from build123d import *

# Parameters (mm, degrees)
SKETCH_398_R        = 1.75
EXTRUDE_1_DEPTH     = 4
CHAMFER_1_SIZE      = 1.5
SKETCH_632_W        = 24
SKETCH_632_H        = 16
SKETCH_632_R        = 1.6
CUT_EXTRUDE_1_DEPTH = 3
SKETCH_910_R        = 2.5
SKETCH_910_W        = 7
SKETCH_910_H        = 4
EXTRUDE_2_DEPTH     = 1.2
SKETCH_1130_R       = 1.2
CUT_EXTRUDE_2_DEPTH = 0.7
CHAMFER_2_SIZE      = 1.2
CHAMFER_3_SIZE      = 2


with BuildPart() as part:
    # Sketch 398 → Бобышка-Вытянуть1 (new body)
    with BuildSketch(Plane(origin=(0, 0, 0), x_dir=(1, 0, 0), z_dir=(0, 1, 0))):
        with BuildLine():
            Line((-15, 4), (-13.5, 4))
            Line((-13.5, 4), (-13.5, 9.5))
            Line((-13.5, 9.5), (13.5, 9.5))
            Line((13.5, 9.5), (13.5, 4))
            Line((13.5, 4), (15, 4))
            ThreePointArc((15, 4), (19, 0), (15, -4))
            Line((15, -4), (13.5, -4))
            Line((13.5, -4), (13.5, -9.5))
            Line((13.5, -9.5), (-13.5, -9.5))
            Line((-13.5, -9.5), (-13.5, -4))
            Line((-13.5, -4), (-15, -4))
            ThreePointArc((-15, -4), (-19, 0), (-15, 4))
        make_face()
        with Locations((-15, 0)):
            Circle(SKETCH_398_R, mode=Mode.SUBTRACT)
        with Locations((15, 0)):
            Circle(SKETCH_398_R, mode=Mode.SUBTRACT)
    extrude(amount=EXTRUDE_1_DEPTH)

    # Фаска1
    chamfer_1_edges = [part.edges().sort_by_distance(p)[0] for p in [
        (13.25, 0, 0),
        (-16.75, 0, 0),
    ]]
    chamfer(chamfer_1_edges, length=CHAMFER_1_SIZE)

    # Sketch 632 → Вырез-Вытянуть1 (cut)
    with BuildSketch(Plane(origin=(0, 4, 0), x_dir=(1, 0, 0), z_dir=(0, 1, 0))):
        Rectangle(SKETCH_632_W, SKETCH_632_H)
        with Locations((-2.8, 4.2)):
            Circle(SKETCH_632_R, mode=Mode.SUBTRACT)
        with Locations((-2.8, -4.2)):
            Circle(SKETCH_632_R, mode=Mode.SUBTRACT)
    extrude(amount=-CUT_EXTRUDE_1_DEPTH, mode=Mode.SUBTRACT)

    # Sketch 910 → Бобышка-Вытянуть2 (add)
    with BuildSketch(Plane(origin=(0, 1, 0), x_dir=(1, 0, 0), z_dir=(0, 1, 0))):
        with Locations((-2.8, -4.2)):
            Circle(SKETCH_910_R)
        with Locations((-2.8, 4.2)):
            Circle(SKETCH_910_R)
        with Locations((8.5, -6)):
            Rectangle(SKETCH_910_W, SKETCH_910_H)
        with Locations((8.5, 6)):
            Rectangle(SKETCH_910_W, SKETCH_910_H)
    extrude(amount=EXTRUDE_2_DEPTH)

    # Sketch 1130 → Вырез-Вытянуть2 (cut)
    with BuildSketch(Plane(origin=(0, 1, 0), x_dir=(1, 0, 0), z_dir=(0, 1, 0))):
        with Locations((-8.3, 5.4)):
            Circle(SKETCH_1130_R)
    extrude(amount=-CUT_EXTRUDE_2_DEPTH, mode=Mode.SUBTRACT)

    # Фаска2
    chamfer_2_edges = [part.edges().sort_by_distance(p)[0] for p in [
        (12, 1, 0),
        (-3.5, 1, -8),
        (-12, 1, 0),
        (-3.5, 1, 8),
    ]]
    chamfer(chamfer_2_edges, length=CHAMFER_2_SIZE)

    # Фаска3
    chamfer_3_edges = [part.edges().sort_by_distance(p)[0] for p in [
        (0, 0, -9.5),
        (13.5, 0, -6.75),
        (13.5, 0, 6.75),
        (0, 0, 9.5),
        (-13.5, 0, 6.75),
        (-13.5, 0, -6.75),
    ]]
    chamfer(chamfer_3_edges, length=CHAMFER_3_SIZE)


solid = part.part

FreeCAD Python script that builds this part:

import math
import FreeCAD as App
import Part
import Sketcher

V = App.Vector
Q = App.Units.Quantity


def edges_at(feature, points):
    """Names of the edges that pass closest to the given points."""
    edges = feature.Shape.Edges
    near = lambda p: min(range(len(edges)), key=lambda i: edges[i].distToShape(Part.Vertex(*p))[0])
    return sorted({f"Edge{near(p) + 1}" for p in points})

doc = App.newDocument("Part")
body = doc.addObject("PartDesign::Body", "Body")

sketch1 = body.newObject("Sketcher::SketchObject", "Sketch")
sketch1.AttachmentSupport = (doc.getObject("XZ_Plane"), [""])
sketch1.MapMode = "FlatFace"
sketch1.addGeometry(Part.LineSegment(V(-13.5, -4, 0), V(-15, -4, 0)), False)
sketch1.addGeometry(Part.ArcOfCircle(Part.Circle(V(-15, 0, 0), V(0, 0, 1), 4), math.radians(90), math.radians(270)), False)
sketch1.addGeometry(Part.LineSegment(V(-15, 4, 0), V(-13.5, 4, 0)), False)
sketch1.addGeometry(Part.LineSegment(V(-13.5, 4, 0), V(-13.5, 9.5, 0)), False)
sketch1.addGeometry(Part.LineSegment(V(-13.5, 9.5, 0), V(13.5, 9.5, 0)), False)
sketch1.addGeometry(Part.LineSegment(V(13.5, 9.5, 0), V(13.5, 4, 0)), False)
sketch1.addGeometry(Part.LineSegment(V(13.5, 4, 0), V(15, 4, 0)), False)
sketch1.addGeometry(Part.ArcOfCircle(Part.Circle(V(15, 0, 0), V(0, 0, 1), 4), math.radians(-90), math.radians(90)), False)
sketch1.addGeometry(Part.LineSegment(V(15, -4, 0), V(13.5, -4, 0)), False)
sketch1.addGeometry(Part.LineSegment(V(13.5, -4, 0), V(13.5, -9.5, 0)), False)
sketch1.addGeometry(Part.LineSegment(V(13.5, -9.5, 0), V(-13.5, -9.5, 0)), False)
sketch1.addGeometry(Part.LineSegment(V(-13.5, -9.5, 0), V(-13.5, -4, 0)), False)
sketch1.addGeometry(Part.Circle(V(15, 0, 0), V(0, 0, 1), 1.8), False)
sketch1.addGeometry(Part.Circle(V(-15, 0, 0), V(0, 0, 1), 1.8), False)
sketch1.addConstraint(Sketcher.Constraint("Tangent", 0, 2, 1, 2))
sketch1.addConstraint(Sketcher.Constraint("Tangent", 1, 1, 2, 1))
sketch1.addConstraint(Sketcher.Constraint("Coincident", 2, 2, 3, 1))
sketch1.addConstraint(Sketcher.Constraint("Coincident", 3, 2, 4, 1))
sketch1.addConstraint(Sketcher.Constraint("Coincident", 4, 2, 5, 1))
sketch1.addConstraint(Sketcher.Constraint("Coincident", 5, 2, 6, 1))
sketch1.addConstraint(Sketcher.Constraint("Tangent", 6, 2, 7, 2))
sketch1.addConstraint(Sketcher.Constraint("Tangent", 7, 1, 8, 1))
sketch1.addConstraint(Sketcher.Constraint("Coincident", 8, 2, 9, 1))
sketch1.addConstraint(Sketcher.Constraint("Coincident", 9, 2, 10, 1))
sketch1.addConstraint(Sketcher.Constraint("Coincident", 10, 2, 11, 1))
sketch1.addConstraint(Sketcher.Constraint("Coincident", 11, 2, 0, 1))
sketch1.addConstraint(Sketcher.Constraint("Horizontal", 0))
sketch1.addConstraint(Sketcher.Constraint("Horizontal", 2))
sketch1.addConstraint(Sketcher.Constraint("Vertical", 3))
sketch1.addConstraint(Sketcher.Constraint("Horizontal", 4))
sketch1.addConstraint(Sketcher.Constraint("Vertical", 5))
sketch1.addConstraint(Sketcher.Constraint("Horizontal", 6))
sketch1.addConstraint(Sketcher.Constraint("Horizontal", 8))
sketch1.addConstraint(Sketcher.Constraint("Vertical", 9))
sketch1.addConstraint(Sketcher.Constraint("Horizontal", 10))
sketch1.addConstraint(Sketcher.Constraint("Vertical", 11))
sketch1.addConstraint(Sketcher.Constraint("Coincident", 12, 3, 7, 3))
sketch1.addConstraint(Sketcher.Constraint("Coincident", 13, 3, 1, 3))
sketch1.addConstraint(Sketcher.Constraint("Equal", 1, 7))
sketch1.addConstraint(Sketcher.Constraint("Equal", 12, 13))
sketch1.addConstraint(Sketcher.Constraint("Symmetric", 1, 3, 7, 3, -1, 1))
sketch1.addConstraint(Sketcher.Constraint("Symmetric", 3, 2, 9, 2, -1, 1))
sketch1.addConstraint(Sketcher.Constraint("Symmetric", 2, 2, 5, 2, -2))
sketch1.addConstraint(Sketcher.Constraint("Vertical", 3, 2, 10, 2))
sketch1.addConstraint(Sketcher.Constraint("Radius", 1, Q("4 mm")))
sketch1.addConstraint(Sketcher.Constraint("Diameter", 12, Q("3.5 mm")))
sketch1.addConstraint(Sketcher.Constraint("DistanceX", 4, 1, 4, 2, Q("27 mm")))
sketch1.addConstraint(Sketcher.Constraint("DistanceX", 0, 2, 0, 1, Q("1.5 mm")))
sketch1.addConstraint(Sketcher.Constraint("DistanceY", 3, 1, 3, 2, Q("5.5 mm")))
pad1 = body.newObject("PartDesign::Pad", "Pad")
pad1.Profile = sketch1
pad1.Length = 4
pad1.Reversed = True
doc.recompute()

chamfer = body.newObject("PartDesign::Chamfer", "Chamfer")
chamfer.Base = (pad1, edges_at(pad1, [(13.25, 0, 0), (-16.75, 0, 0)]))
chamfer.Size = 1.5

sketch2 = body.newObject("Sketcher::SketchObject", "Sketch001")
sketch2.AttachmentSupport = (doc.getObject("XZ_Plane"), [""])
sketch2.MapMode = "FlatFace"
sketch2.AttachmentOffset = App.Placement(V(0, 0, -4), App.Rotation())
sketch2.addGeometry(Part.LineSegment(V(-12, -8, 0), V(-12, 8, 0)), False)
sketch2.addGeometry(Part.LineSegment(V(-12, 8, 0), V(12, 8, 0)), False)
sketch2.addGeometry(Part.LineSegment(V(12, 8, 0), V(12, -8, 0)), False)
sketch2.addGeometry(Part.LineSegment(V(12, -8, 0), V(-12, -8, 0)), False)
sketch2.addGeometry(Part.Circle(V(-2.8, 4.2, 0), V(0, 0, 1), 1.6), False)
sketch2.addGeometry(Part.Circle(V(-2.8, -4.2, 0), V(0, 0, 1), 1.6), False)
sketch2.addConstraint(Sketcher.Constraint("Coincident", 0, 2, 1, 1))
sketch2.addConstraint(Sketcher.Constraint("Coincident", 1, 2, 2, 1))
sketch2.addConstraint(Sketcher.Constraint("Coincident", 2, 2, 3, 1))
sketch2.addConstraint(Sketcher.Constraint("Coincident", 3, 2, 0, 1))
sketch2.addConstraint(Sketcher.Constraint("Vertical", 0))
sketch2.addConstraint(Sketcher.Constraint("Horizontal", 1))
sketch2.addConstraint(Sketcher.Constraint("Vertical", 2))
sketch2.addConstraint(Sketcher.Constraint("Horizontal", 3))
sketch2.addConstraint(Sketcher.Constraint("Equal", 4, 5))
sketch2.addConstraint(Sketcher.Constraint("Symmetric", 0, 2, 2, 2, -1, 1))
sketch2.addConstraint(Sketcher.Constraint("Symmetric", 4, 3, 5, 3, -1))
sketch2.addConstraint(Sketcher.Constraint("Diameter", 4, Q("3.2 mm")))
sketch2.addConstraint(Sketcher.Constraint("DistanceX", 1, 1, 1, 2, Q("24 mm")))
sketch2.addConstraint(Sketcher.Constraint("DistanceY", 0, 1, 0, 2, Q("16 mm")))
sketch2.addConstraint(Sketcher.Constraint("DistanceX", 4, 3, -1, 1, Q("2.8 mm")))
sketch2.addConstraint(Sketcher.Constraint("DistanceY", -1, 1, 4, 3, Q("4.2 mm")))
pocket1 = body.newObject("PartDesign::Pocket", "Pocket")
pocket1.Profile = sketch2
pocket1.Length = 3
pocket1.Reversed = True

sketch3 = body.newObject("Sketcher::SketchObject", "Sketch002")
sketch3.AttachmentSupport = (doc.getObject("XZ_Plane"), [""])
sketch3.MapMode = "FlatFace"
sketch3.AttachmentOffset = App.Placement(V(0, 0, -1), App.Rotation())
sketch3.addGeometry(Part.Circle(V(-2.8, 4.2, 0), V(0, 0, 1), 2.5), False)
sketch3.addGeometry(Part.Circle(V(-2.8, -4.2, 0), V(0, 0, 1), 2.5), False)
sketch3.addGeometry(Part.LineSegment(V(5, 4, 0), V(5, 8, 0)), False)
sketch3.addGeometry(Part.LineSegment(V(5, 8, 0), V(12, 8, 0)), False)
sketch3.addGeometry(Part.LineSegment(V(12, 8, 0), V(12, 4, 0)), False)
sketch3.addGeometry(Part.LineSegment(V(12, 4, 0), V(5, 4, 0)), False)
sketch3.addGeometry(Part.LineSegment(V(5, -8, 0), V(5, -4, 0)), False)
sketch3.addGeometry(Part.LineSegment(V(5, -4, 0), V(12, -4, 0)), False)
sketch3.addGeometry(Part.LineSegment(V(12, -4, 0), V(12, -8, 0)), False)
sketch3.addGeometry(Part.LineSegment(V(12, -8, 0), V(5, -8, 0)), False)
sketch3.addConstraint(Sketcher.Constraint("Coincident", 2, 2, 3, 1))
sketch3.addConstraint(Sketcher.Constraint("Coincident", 3, 2, 4, 1))
sketch3.addConstraint(Sketcher.Constraint("Coincident", 4, 2, 5, 1))
sketch3.addConstraint(Sketcher.Constraint("Coincident", 5, 2, 2, 1))
sketch3.addConstraint(Sketcher.Constraint("Coincident", 6, 2, 7, 1))
sketch3.addConstraint(Sketcher.Constraint("Coincident", 7, 2, 8, 1))
sketch3.addConstraint(Sketcher.Constraint("Coincident", 8, 2, 9, 1))
sketch3.addConstraint(Sketcher.Constraint("Coincident", 9, 2, 6, 1))
sketch3.addConstraint(Sketcher.Constraint("Vertical", 2))
sketch3.addConstraint(Sketcher.Constraint("Horizontal", 3))
sketch3.addConstraint(Sketcher.Constraint("Vertical", 4))
sketch3.addConstraint(Sketcher.Constraint("Horizontal", 5))
sketch3.addConstraint(Sketcher.Constraint("Vertical", 6))
sketch3.addConstraint(Sketcher.Constraint("Horizontal", 7))
sketch3.addConstraint(Sketcher.Constraint("Vertical", 8))
sketch3.addConstraint(Sketcher.Constraint("Horizontal", 9))
sketch3.addConstraint(Sketcher.Constraint("Equal", 0, 1))
sketch3.addConstraint(Sketcher.Constraint("Symmetric", 0, 3, 1, 3, -1))
sketch3.addConstraint(Sketcher.Constraint("Symmetric", 5, 2, 6, 2, -1))
sketch3.addConstraint(Sketcher.Constraint("Symmetric", 3, 2, 8, 2, -1))
sketch3.addConstraint(Sketcher.Constraint("Diameter", 0, Q("5 mm")))
sketch3.addConstraint(Sketcher.Constraint("DistanceX", 3, 1, 3, 2, Q("7 mm")))
sketch3.addConstraint(Sketcher.Constraint("DistanceY", 2, 1, 2, 2, Q("4 mm")))
sketch3.addConstraint(Sketcher.Constraint("DistanceX", -1, 1, 2, 2, Q("5 mm")))
sketch3.addConstraint(Sketcher.Constraint("DistanceY", -1, 1, 2, 2, Q("8 mm")))
sketch3.addConstraint(Sketcher.Constraint("DistanceX", 0, 3, -1, 1, Q("2.8 mm")))
sketch3.addConstraint(Sketcher.Constraint("DistanceY", -1, 1, 0, 3, Q("4.2 mm")))
pad2 = body.newObject("PartDesign::Pad", "Pad001")
pad2.Profile = sketch3
pad2.Length = 1.2
pad2.Reversed = True

sketch4 = body.newObject("Sketcher::SketchObject", "Sketch003")
sketch4.AttachmentSupport = (doc.getObject("XZ_Plane"), [""])
sketch4.MapMode = "FlatFace"
sketch4.AttachmentOffset = App.Placement(V(0, 0, -1), App.Rotation())
sketch4.addGeometry(Part.Circle(V(-8.3, -5.4, 0), V(0, 0, 1), 1.2), False)
sketch4.addConstraint(Sketcher.Constraint("Diameter", 0, Q("2.4 mm")))
sketch4.addConstraint(Sketcher.Constraint("DistanceX", 0, 3, -1, 1, Q("8.3 mm")))
sketch4.addConstraint(Sketcher.Constraint("DistanceY", 0, 3, -1, 1, Q("5.4 mm")))
pocket2 = body.newObject("PartDesign::Pocket", "Pocket001")
pocket2.Profile = sketch4
pocket2.Length = 0.7
pocket2.Reversed = True
doc.recompute()

chamfer2 = body.newObject("PartDesign::Chamfer", "Chamfer001")
chamfer2.Base = (pocket2, edges_at(pocket2, [
    (12, 1, 0),
    (-3.5, 1, -8),
    (-12, 1, 0),
    (-3.5, 1, 8),
]))
chamfer2.Size = 1.2
doc.recompute()

chamfer3 = body.newObject("PartDesign::Chamfer", "Chamfer002")
chamfer3.Base = (chamfer2, edges_at(chamfer2, [
    (0, 0, -9.5),
    (13.5, 0, -6.75),
    (13.5, 0, 6.75),
    (0, 0, 9.5),
    (-13.5, 0, 6.75),
    (-13.5, 0, -6.75),
]))
chamfer3.Size = 2

doc.recompute()
